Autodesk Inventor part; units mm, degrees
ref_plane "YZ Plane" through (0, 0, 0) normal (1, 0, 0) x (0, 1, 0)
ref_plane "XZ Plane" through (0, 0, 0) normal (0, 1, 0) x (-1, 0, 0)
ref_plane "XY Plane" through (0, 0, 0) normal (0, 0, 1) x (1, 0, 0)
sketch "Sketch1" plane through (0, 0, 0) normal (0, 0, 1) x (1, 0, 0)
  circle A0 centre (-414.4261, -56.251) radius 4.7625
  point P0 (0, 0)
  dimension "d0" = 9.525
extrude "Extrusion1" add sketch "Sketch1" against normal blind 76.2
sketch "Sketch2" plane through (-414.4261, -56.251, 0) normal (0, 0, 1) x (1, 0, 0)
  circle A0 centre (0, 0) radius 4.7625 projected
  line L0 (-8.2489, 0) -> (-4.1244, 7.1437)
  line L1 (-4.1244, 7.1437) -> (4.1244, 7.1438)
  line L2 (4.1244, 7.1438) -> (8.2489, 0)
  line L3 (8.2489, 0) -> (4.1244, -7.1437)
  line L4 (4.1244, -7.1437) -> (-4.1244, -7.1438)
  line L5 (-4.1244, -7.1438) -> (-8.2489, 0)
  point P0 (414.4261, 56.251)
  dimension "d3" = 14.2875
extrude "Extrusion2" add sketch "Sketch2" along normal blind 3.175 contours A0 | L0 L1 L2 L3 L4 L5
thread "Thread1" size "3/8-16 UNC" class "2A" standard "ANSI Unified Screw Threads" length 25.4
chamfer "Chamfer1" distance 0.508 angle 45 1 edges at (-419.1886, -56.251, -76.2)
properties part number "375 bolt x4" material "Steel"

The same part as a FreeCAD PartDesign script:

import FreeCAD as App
import Part
import Sketcher
Q = App.Units.Quantity


def edges_at(feature, points):
    """Names of the edges that pass closest to the given points."""
    edges = feature.Shape.Edges
    near = lambda p: min(range(len(edges)), key=lambda i: edges[i].distToShape(Part.Vertex(*p))[0])
    return sorted({f"Edge{near(p) + 1}" for p in points})


def add_polygon(sketch, points):
    """Adds a closed chain of lines whose ends are joined by coincident constraints."""
    first, n = sketch.GeometryCount, len(points)
    for a, b in zip(points, points[1:] + points[:1]):
        sketch.addGeometry(Part.LineSegment(App.Vector(*a, 0), App.Vector(*b, 0)), False)
    for i in range(n):
        sketch.addConstraint(Sketcher.Constraint("Coincident", first + i, 2, first + (i + 1) % n, 1))

doc = App.newDocument("Part")
params = doc.addObject("Spreadsheet::Sheet", "Params")
for row, (alias, value) in enumerate([
    ("sketch1_diameter", "0.375 in"),
    ("pad1_length", "3 in"),
    ("pad2_length", "0.125 in"),
    ("chamfer_size", "0.02 in"),
], start=1):
    params.set(f"A{row}", alias)
    params.set(f"B{row}", "=" + value)
    params.setAlias(f"B{row}", alias)

body = doc.addObject("PartDesign::Body", "Body")

# Sketch on XY plane
sketch1 = body.newObject("Sketcher::SketchObject", "Sketch")
sketch1.AttachmentSupport = (doc.getObject("XY_Plane"), [""])
sketch1.MapMode = "FlatFace"
sketch1.addGeometry(Part.Circle(App.Vector(-414.4, -56.3, 0), App.Vector(0, 0, 1), 4.8), False)
sketch1.addConstraint(Sketcher.Constraint("Diameter", 0, Q("0.375 in")))
sketch1.addConstraint(Sketcher.Constraint("DistanceX", 0, 3, -1, 1, Q("16.316 in")))
sketch1.addConstraint(Sketcher.Constraint("DistanceY", 0, 3, -1, 1, Q("2.2146 in")))
sketch1.setExpression("Constraints[0]", "Params.sketch1_diameter")
pad1 = body.newObject("PartDesign::Pad", "Pad")
pad1.Profile = sketch1
pad1.setExpression("Length", "Params.pad1_length")
pad1.Reversed = True

# Sketch on XY plane
sketch2 = body.newObject("Sketcher::SketchObject", "Sketch001")
sketch2.AttachmentSupport = (doc.getObject("XY_Plane"), [""])
sketch2.MapMode = "FlatFace"
add_polygon(sketch2, [(-419, -49), (-423, -56), (-419, -63), (-410, -63), (-406, -56), (-410, -49)])  # lines 0-5
sketch2.addConstraint(Sketcher.Constraint("Horizontal", 2))
sketch2.addConstraint(Sketcher.Constraint("Horizontal", 5))
sketch2.addConstraint(Sketcher.Constraint("Parallel", 0, 3))
sketch2.addConstraint(Sketcher.Constraint("Parallel", 1, 4))
sketch2.addConstraint(Sketcher.Constraint("Horizontal", 0, 2, 3, 2))
sketch2.addConstraint(Sketcher.Constraint("Vertical", 2, 2, 4, 2))
sketch2.addConstraint(Sketcher.Constraint("Vertical", 1, 2, 5, 2))
sketch2.addConstraint(Sketcher.Constraint("Angle", 0, Q("-120.0005 deg")))
sketch2.addConstraint(Sketcher.Constraint("DistanceY", 2, 2, 4, 2, Q("0.5625 in")))
sketch2.addConstraint(Sketcher.Constraint("DistanceX", 2, 1, 2, 2, 8.2488))
sketch2.addConstraint(Sketcher.Constraint("DistanceY", 0, 2, -1, 1, Q("2.2146 in")))
sketch2.addConstraint(Sketcher.Constraint("DistanceX", 2, 2, -1, 1, Q("16.1536 in")))
pad2 = body.newObject("PartDesign::Pad", "Pad001")
pad2.Profile = sketch2
pad2.setExpression("Length", "Params.pad2_length")
doc.recompute()

chamfer = body.newObject("PartDesign::Chamfer", "Chamfer")
chamfer.Base = (pad2, edges_at(pad2, [(-419.189, -56.251, -76.2)]))
chamfer.setExpression("Size", "Params.chamfer_size")

doc.recompute()
